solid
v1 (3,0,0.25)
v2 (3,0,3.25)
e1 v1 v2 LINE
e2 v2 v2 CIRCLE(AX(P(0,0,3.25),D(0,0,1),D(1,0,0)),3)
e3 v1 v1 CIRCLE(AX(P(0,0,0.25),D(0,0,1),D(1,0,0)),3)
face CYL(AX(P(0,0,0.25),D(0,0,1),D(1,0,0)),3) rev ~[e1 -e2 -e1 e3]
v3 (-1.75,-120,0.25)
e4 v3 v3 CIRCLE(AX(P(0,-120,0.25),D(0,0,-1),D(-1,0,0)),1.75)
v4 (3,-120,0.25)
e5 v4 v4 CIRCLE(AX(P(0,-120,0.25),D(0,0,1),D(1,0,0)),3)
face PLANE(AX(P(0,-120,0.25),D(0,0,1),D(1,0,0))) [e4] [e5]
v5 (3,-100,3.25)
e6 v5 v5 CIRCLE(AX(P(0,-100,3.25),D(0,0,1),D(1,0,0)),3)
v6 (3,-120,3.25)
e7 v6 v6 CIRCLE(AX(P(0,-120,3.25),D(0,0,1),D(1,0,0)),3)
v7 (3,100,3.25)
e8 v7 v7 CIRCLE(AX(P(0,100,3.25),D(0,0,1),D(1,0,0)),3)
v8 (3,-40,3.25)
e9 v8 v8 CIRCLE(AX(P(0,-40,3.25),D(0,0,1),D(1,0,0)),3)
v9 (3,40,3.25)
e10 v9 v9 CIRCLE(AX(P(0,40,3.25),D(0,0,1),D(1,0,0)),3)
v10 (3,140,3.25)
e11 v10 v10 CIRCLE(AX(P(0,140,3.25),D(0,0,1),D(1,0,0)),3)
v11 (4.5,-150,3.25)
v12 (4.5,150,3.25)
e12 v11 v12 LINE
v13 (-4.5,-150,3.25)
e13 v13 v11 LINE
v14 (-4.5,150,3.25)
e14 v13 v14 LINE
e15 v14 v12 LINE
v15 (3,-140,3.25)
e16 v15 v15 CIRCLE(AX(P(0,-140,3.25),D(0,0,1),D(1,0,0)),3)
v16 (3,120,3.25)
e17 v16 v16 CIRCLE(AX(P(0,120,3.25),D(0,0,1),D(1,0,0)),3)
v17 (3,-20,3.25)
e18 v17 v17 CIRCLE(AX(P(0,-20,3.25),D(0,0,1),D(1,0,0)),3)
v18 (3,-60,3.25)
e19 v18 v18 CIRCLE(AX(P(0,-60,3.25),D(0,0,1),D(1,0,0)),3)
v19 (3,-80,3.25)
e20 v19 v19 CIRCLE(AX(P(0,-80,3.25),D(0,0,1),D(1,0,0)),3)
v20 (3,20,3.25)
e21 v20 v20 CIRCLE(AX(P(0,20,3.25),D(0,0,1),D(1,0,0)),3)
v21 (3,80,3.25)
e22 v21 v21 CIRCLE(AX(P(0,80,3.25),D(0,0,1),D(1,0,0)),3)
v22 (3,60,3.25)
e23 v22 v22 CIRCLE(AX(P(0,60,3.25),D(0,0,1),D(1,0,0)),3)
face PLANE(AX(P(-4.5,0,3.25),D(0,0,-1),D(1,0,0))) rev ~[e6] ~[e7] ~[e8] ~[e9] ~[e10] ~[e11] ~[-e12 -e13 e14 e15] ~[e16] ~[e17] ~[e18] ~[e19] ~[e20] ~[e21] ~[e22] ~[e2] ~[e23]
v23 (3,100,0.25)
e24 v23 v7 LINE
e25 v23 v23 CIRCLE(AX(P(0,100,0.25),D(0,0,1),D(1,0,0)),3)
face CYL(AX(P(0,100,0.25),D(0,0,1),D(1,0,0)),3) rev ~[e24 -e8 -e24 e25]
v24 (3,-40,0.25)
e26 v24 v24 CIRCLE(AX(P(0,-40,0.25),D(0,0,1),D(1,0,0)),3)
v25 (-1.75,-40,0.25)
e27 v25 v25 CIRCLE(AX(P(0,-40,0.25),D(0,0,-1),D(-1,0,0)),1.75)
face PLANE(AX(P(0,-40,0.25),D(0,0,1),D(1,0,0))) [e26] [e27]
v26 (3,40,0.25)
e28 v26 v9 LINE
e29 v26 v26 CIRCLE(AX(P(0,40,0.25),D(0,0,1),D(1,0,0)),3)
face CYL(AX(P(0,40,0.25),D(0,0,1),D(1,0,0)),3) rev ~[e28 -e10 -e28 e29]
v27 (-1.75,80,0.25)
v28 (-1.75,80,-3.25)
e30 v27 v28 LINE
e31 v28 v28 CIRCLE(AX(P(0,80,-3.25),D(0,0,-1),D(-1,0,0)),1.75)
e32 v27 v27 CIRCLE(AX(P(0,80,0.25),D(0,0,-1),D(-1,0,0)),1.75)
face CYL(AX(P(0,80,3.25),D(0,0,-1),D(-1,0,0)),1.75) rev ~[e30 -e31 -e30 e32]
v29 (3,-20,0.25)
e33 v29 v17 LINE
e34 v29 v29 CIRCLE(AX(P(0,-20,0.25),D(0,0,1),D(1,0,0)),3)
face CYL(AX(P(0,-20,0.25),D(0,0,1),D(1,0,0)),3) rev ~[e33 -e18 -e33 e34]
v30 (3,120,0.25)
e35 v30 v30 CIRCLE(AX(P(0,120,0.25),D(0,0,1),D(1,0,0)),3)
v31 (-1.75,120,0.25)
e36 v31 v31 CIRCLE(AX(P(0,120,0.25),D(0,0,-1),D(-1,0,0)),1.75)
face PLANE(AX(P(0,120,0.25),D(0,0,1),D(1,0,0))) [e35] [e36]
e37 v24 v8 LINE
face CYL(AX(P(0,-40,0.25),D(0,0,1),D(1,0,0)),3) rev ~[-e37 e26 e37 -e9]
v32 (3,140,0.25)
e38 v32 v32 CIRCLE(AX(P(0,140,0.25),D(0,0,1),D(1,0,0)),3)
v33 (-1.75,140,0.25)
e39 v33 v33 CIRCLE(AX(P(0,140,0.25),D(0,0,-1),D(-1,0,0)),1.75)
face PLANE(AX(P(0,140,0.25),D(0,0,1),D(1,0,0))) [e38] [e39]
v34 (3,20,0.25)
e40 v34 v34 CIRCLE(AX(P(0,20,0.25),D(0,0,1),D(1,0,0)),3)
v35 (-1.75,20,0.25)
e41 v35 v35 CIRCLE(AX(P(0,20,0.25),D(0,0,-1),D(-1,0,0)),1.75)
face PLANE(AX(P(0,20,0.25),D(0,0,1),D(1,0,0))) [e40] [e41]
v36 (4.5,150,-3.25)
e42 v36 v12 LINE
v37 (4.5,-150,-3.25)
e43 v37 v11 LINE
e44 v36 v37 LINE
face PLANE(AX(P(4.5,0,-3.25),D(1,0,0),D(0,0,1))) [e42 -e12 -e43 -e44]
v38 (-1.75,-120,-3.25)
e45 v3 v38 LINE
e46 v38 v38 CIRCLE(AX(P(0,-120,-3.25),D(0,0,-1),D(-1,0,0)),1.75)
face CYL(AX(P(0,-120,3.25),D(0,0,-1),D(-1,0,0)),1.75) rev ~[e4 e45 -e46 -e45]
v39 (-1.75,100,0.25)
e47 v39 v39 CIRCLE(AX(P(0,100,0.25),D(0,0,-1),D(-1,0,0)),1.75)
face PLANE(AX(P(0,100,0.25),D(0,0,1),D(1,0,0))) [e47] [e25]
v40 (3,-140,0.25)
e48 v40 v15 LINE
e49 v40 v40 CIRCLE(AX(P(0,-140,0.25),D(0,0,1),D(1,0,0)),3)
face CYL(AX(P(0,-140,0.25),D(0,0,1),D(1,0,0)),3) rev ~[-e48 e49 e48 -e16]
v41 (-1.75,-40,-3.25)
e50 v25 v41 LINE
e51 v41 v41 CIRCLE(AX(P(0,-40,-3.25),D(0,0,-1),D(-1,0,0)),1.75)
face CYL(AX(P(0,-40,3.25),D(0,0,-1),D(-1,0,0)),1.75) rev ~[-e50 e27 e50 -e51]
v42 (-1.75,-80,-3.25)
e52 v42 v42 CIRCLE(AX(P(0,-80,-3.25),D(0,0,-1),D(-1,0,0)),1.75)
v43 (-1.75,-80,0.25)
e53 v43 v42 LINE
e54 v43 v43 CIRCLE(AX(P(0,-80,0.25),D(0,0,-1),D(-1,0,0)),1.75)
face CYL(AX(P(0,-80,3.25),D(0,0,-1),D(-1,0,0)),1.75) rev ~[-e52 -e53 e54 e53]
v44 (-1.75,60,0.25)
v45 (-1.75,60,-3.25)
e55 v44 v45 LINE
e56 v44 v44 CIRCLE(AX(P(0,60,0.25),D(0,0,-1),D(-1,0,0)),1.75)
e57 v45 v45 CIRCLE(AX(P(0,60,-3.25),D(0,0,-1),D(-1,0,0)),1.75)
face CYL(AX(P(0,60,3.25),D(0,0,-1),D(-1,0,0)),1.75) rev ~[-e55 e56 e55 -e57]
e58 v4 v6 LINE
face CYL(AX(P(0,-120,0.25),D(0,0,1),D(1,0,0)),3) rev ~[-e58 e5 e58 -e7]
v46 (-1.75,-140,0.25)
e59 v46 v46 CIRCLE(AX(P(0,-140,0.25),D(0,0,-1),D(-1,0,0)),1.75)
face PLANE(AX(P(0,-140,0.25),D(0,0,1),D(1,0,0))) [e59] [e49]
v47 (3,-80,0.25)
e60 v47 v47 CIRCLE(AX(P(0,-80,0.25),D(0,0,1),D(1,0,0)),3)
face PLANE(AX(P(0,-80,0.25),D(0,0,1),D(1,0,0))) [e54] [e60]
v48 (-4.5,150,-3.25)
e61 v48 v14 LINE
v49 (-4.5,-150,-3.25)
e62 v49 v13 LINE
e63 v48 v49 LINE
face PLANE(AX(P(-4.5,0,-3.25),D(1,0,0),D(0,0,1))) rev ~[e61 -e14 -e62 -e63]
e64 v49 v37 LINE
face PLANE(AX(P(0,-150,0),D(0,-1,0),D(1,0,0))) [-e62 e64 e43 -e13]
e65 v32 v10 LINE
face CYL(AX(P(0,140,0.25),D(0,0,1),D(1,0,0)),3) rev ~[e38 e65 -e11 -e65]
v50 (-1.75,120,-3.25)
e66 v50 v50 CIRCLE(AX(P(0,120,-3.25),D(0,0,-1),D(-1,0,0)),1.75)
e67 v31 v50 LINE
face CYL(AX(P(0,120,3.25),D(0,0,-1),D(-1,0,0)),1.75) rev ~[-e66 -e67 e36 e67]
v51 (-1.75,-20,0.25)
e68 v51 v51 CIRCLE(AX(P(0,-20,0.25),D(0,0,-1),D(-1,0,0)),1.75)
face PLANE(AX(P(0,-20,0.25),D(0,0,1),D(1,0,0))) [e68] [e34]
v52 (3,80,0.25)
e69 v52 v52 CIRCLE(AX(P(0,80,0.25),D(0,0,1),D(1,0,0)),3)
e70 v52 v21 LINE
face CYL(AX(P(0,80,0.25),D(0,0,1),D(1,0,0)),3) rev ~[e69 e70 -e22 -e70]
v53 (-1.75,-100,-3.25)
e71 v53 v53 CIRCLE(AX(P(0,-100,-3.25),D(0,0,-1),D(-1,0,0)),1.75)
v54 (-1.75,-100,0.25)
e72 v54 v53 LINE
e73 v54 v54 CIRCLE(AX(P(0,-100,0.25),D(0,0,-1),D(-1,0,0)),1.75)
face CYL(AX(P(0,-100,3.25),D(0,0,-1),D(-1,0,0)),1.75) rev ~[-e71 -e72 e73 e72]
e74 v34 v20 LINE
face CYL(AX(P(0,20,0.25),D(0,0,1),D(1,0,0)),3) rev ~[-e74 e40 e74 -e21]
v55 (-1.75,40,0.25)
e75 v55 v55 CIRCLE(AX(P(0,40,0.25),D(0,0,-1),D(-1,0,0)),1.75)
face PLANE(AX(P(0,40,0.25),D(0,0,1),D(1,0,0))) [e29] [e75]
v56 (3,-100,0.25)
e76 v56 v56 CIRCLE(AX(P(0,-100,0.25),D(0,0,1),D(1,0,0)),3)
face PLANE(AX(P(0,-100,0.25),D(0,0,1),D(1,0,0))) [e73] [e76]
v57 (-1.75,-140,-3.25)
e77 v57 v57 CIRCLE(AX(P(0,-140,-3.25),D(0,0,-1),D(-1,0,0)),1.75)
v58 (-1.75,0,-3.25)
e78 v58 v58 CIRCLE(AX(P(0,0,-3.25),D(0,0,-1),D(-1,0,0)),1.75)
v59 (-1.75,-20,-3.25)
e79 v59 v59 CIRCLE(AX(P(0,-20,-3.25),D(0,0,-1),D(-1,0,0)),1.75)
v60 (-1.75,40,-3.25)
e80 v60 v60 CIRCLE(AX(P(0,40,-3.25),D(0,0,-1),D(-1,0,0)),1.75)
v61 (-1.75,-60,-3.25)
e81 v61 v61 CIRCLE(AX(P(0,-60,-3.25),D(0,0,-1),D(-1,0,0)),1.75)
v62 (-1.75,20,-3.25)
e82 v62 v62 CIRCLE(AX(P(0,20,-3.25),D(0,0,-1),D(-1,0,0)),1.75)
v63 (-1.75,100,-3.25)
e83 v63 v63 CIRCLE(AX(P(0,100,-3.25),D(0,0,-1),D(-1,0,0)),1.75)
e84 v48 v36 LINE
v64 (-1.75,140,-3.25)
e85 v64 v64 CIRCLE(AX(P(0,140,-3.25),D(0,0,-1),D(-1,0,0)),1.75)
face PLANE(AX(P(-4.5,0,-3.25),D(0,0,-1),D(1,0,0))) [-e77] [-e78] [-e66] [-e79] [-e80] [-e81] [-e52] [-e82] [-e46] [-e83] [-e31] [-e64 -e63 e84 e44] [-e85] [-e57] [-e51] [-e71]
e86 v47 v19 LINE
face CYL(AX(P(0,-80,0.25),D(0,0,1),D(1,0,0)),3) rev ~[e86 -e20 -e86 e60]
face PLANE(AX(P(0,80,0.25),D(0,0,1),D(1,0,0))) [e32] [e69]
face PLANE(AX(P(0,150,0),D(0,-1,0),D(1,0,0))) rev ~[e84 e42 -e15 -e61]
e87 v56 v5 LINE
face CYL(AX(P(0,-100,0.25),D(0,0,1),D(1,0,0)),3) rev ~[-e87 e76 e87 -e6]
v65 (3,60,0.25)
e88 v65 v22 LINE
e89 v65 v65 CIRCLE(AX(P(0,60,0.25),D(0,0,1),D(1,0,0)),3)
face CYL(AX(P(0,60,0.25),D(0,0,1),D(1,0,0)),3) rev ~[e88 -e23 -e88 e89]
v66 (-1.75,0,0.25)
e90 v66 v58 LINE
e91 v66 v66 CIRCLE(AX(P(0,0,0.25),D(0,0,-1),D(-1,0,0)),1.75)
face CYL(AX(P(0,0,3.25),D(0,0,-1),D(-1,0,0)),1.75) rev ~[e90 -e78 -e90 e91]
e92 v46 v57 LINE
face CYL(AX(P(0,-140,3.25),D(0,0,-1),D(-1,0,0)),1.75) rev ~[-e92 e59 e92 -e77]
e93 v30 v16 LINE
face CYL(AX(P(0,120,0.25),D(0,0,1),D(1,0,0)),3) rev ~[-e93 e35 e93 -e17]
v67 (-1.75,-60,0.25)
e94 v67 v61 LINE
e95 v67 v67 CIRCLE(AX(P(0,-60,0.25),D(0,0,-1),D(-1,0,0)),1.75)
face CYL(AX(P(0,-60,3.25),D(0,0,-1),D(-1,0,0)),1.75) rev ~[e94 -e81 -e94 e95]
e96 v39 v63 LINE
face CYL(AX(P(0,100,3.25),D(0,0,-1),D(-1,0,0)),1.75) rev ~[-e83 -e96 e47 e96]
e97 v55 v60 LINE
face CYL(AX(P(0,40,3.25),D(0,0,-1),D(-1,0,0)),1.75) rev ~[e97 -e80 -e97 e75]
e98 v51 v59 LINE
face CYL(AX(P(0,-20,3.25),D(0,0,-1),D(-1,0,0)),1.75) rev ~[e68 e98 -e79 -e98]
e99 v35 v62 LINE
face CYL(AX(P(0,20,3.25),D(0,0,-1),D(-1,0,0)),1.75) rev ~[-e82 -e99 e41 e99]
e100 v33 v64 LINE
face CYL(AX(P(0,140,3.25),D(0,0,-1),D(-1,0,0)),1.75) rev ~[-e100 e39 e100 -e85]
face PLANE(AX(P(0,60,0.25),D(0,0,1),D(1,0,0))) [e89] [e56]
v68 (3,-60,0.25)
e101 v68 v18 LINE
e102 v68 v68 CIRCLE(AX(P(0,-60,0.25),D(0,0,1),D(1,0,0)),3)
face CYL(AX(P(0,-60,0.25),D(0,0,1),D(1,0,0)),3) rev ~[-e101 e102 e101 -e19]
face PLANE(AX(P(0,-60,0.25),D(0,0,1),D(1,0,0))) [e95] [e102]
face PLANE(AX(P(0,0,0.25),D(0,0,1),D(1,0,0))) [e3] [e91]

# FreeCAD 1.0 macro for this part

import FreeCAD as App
import Part
import Sketcher

V = App.Vector
Q = App.Units.Quantity

doc = App.newDocument("Part")
body = doc.addObject("PartDesign::Body", "Body")

# Sketch on XZ plane
sketch1 = doc.addObject("Sketcher::SketchObject", "Sketch")
body.addObject(sketch1)
sketch1.AttachmentSupport = (doc.XZ_Plane, [""])
sketch1.MapMode = "FlatFace"
sketch1.addGeometry([
    Part.LineSegment(V(-4, 3, 0), V(-4, -3, 0)),
    Part.LineSegment(V(-4, -3, 0), V(4, -3, 0)),
    Part.LineSegment(V(4, -3, 0), V(4, 3, 0)),
    Part.LineSegment(V(4, 3, 0), V(-4, 3, 0)),
], False)
sketch1.addConstraint([
    Sketcher.Constraint("Coincident", 0, 2, 1, 1),
    Sketcher.Constraint("Coincident", 1, 2, 2, 1),
    Sketcher.Constraint("Coincident", 2, 2, 3, 1),
    Sketcher.Constraint("Coincident", 3, 2, 0, 1),
    Sketcher.Constraint("Vertical", 0),
    Sketcher.Constraint("Horizontal", 1),
    Sketcher.Constraint("Vertical", 2),
    Sketcher.Constraint("Horizontal", 3),
    Sketcher.Constraint("Symmetric", 0, 2, 2, 2, -1, 1),
    Sketcher.Constraint("DistanceX", 1, 1, 1, 2, Q("9 mm")),
    Sketcher.Constraint("DistanceY", 0, 2, 0, 1, Q("6.5 mm")),
])
pad1 = doc.addObject("PartDesign::Pad", "Pad")
body.addObject(pad1)
pad1.Profile = sketch1
pad1.Type = "TwoLengths"
pad1.Length = 150
pad1.Length2 = 150

# Sketch on XY plane
sketch2 = doc.addObject("Sketcher::SketchObject", "Sketch001")
body.addObject(sketch2)
sketch2.AttachmentSupport = (doc.XY_Plane, [""])
sketch2.MapMode = "FlatFace"
sketch2.AttachmentOffset = App.Placement(V(0, 0, 3.25), App.Rotation())
sketch2.addGeometry([
    Part.Circle(V(0, -140, 0), V(0, 0, 1), 1.8),  # 0
    Part.Circle(V(0, -120, 0), V(0, 0, 1), 1.8),  # 1
    Part.Circle(V(0, -100, 0), V(0, 0, 1), 1.8),  # 2
    Part.Circle(V(0, -80, 0), V(0, 0, 1), 1.8),  # 3
    Part.Circle(V(0, -60, 0), V(0, 0, 1), 1.8),  # 4
    Part.Circle(V(0, -40, 0), V(0, 0, 1), 1.8),  # 5
    Part.Circle(V(0, -20, 0), V(0, 0, 1), 1.8),  # 6
    Part.Circle(V(0, 0, 0), V(0, 0, 1), 1.8),  # 7
    Part.Circle(V(0, 20, 0), V(0, 0, 1), 1.8),  # 8
    Part.Circle(V(0, 40, 0), V(0, 0, 1), 1.8),  # 9
    Part.Circle(V(0, 60, 0), V(0, 0, 1), 1.8),  # 10
    Part.Circle(V(0, 80, 0), V(0, 0, 1), 1.8),  # 11
    Part.Circle(V(0, 100, 0), V(0, 0, 1), 1.8),  # 12
    Part.Circle(V(0, 120, 0), V(0, 0, 1), 1.8),  # 13
    Part.Circle(V(0, 140, 0), V(0, 0, 1), 1.8),  # 14
], False)
sketch2.addConstraint([
    Sketcher.Constraint("Coincident", 7, 3, -1, 1),
    Sketcher.Constraint("Equal", 0, 1),
    Sketcher.Constraint("Equal", 1, 2),
    Sketcher.Constraint("Equal", 2, 3),
    Sketcher.Constraint("Equal", 3, 4),
    Sketcher.Constraint("Equal", 4, 5),
    Sketcher.Constraint("Equal", 5, 6),
    Sketcher.Constraint("Equal", 6, 7),
    Sketcher.Constraint("Equal", 7, 8),
    Sketcher.Constraint("Equal", 8, 9),
    Sketcher.Constraint("Equal", 9, 10),
    Sketcher.Constraint("Equal", 10, 11),
    Sketcher.Constraint("Equal", 11, 12),
    Sketcher.Constraint("Equal", 12, 13),
    Sketcher.Constraint("Equal", 13, 14),
    Sketcher.Constraint("Symmetric", 6, 3, 8, 3, -1, 1),
    Sketcher.Constraint("Symmetric", 5, 3, 9, 3, -1, 1),
    Sketcher.Constraint("Symmetric", 4, 3, 10, 3, -1, 1),
    Sketcher.Constraint("Symmetric", 3, 3, 11, 3, -1, 1),
    Sketcher.Constraint("Symmetric", 2, 3, 12, 3, -1, 1),
    Sketcher.Constraint("Symmetric", 1, 3, 13, 3, -1, 1),
    Sketcher.Constraint("Symmetric", 0, 3, 14, 3, -1, 1),
    Sketcher.Constraint("PointOnObject", 0, 3, -2),
    Sketcher.Constraint("PointOnObject", 1, 3, -2),
    Sketcher.Constraint("PointOnObject", 2, 3, -2),
    Sketcher.Constraint("PointOnObject", 3, 3, -2),
    Sketcher.Constraint("PointOnObject", 4, 3, -2),
    Sketcher.Constraint("PointOnObject", 5, 3, -2),
    Sketcher.Constraint("PointOnObject", 6, 3, -2),
    Sketcher.Constraint("Diameter", 0, Q("3.5 mm")),
    Sketcher.Constraint("DistanceY", 0, 3, -1, 1, Q("140 mm")),
    Sketcher.Constraint("DistanceY", 1, 3, -1, 1, Q("120 mm")),
    Sketcher.Constraint("DistanceY", 2, 3, -1, 1, Q("100 mm")),
    Sketcher.Constraint("DistanceY", 3, 3, -1, 1, Q("80 mm")),
    Sketcher.Constraint("DistanceY", 4, 3, -1, 1, Q("60 mm")),
    Sketcher.Constraint("DistanceY", 5, 3, -1, 1, Q("40 mm")),
    Sketcher.Constraint("DistanceY", 6, 3, -1, 1, Q("20 mm")),
])
doc.recompute()
hole = doc.addObject("PartDesign::Hole", "Hole")
body.addObject(hole)
hole.Profile = sketch2
hole.ThreadType = "None"
hole.Diameter = 3.5
hole.DepthType = "ThroughAll"
hole.HoleCutType = "Counterbore"
hole.HoleCutDiameter = 6
hole.HoleCutDepth = 3

doc.recompute()
